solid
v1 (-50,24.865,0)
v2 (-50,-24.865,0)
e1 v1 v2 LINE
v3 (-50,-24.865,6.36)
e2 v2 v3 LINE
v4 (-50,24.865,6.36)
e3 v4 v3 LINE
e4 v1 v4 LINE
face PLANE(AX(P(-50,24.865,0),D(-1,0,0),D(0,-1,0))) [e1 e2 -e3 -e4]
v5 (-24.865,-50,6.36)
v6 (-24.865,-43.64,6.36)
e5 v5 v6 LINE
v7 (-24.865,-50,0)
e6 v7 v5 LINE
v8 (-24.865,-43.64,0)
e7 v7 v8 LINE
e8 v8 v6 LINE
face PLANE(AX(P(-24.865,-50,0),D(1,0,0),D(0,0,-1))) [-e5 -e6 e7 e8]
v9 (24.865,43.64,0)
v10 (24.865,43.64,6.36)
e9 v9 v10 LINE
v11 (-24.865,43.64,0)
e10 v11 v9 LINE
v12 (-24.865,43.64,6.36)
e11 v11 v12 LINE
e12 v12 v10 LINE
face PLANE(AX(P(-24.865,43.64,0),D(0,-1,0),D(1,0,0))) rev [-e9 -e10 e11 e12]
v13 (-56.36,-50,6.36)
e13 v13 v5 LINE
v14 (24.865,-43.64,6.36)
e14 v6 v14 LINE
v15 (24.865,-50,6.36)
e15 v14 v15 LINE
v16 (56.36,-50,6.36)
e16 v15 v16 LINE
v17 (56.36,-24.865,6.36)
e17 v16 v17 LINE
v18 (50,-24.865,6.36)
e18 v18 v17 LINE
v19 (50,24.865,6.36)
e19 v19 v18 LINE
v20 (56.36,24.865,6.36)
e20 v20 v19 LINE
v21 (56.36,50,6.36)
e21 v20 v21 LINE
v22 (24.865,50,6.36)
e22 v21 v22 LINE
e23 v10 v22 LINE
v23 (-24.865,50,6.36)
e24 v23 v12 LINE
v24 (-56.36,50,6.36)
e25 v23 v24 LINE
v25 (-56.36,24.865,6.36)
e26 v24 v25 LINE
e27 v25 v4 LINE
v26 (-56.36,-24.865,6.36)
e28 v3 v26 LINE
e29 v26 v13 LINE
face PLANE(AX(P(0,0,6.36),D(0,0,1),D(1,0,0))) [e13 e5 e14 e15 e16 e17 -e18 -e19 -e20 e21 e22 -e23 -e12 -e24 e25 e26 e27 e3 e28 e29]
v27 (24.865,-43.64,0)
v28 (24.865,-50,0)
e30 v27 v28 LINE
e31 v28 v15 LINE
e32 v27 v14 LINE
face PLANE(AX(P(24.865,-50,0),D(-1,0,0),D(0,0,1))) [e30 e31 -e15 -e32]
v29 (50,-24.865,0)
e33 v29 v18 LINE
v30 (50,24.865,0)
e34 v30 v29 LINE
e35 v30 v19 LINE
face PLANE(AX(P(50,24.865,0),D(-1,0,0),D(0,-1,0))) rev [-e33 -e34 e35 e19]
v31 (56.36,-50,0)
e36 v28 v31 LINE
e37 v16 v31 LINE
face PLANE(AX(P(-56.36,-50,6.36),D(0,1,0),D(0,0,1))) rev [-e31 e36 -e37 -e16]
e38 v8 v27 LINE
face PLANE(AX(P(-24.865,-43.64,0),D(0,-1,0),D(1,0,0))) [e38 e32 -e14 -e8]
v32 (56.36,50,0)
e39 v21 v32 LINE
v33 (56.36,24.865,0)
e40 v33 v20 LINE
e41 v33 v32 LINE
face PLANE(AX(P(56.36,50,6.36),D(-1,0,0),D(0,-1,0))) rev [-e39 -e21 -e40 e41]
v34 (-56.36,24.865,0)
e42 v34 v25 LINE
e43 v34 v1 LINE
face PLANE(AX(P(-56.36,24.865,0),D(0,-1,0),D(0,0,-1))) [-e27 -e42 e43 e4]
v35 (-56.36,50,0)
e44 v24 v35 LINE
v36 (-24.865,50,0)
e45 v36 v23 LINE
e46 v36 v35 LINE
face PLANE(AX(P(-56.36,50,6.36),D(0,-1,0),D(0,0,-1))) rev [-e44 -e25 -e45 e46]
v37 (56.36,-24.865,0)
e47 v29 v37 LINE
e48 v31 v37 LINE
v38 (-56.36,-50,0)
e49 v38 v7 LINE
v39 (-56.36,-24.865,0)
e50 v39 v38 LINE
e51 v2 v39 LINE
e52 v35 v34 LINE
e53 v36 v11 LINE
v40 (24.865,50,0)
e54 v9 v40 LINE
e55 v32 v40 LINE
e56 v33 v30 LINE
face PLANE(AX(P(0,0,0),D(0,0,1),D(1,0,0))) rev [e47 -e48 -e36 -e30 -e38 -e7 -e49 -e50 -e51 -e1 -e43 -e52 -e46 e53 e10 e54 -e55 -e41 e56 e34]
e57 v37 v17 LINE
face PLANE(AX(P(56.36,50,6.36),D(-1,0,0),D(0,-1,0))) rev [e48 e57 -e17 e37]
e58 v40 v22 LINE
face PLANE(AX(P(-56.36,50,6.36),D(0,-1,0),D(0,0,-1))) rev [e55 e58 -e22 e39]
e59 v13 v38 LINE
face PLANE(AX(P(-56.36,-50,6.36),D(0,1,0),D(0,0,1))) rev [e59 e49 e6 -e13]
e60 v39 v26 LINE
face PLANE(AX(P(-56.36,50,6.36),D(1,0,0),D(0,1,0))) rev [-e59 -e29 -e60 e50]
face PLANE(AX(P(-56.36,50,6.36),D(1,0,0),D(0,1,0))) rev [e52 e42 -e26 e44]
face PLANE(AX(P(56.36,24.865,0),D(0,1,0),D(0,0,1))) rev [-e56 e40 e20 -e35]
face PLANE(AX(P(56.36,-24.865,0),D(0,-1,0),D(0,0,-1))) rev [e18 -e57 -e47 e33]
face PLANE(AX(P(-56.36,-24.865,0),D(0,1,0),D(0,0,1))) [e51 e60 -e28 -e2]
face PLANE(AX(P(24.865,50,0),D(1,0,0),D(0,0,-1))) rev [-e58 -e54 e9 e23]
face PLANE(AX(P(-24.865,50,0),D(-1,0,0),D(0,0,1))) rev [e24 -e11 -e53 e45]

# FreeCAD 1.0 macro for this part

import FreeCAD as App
import Part
import Sketcher
from FreeCAD import Vector


def add_polygon(sketch, points):
    """Adds a closed chain of lines whose ends are joined by coincident constraints."""
    first, n = sketch.GeometryCount, len(points)
    for a, b in zip(points, points[1:] + points[:1]):
        sketch.addGeometry(Part.LineSegment(App.Vector(*a, 0), App.Vector(*b, 0)), False)
    for i in range(n):
        sketch.addConstraint(Sketcher.Constraint("Coincident", first + i, 2, first + (i + 1) % n, 1))

doc = App.newDocument("Part")
params = doc.addObject("Spreadsheet::Sheet", "Params")
for row, (alias, value) in enumerate([
    ("sketch1_height", "100 mm"),
    ("sketch1_width", "112.72 mm"),
    ("pad1_length", "6.36 mm"),
    ("sketch2_width", "49.73 mm"),
    ("sketch2_height", "6.36 mm"),
    ("sketch3_width", "6.36 mm"),
    ("sketch3_height", "49.73 mm"),
], start=1):
    params.set(f"A{row}", alias)
    params.set(f"B{row}", "=" + value)
    params.setAlias(f"B{row}", alias)

body = doc.addObject("PartDesign::Body", "Body")

# Sketch on XY plane
sketch1 = doc.addObject("Sketcher::SketchObject", "Sketch")
body.addObject(sketch1)
sketch1.AttachmentSupport = (doc.XY_Plane, [""])
sketch1.MapMode = "FlatFace"
add_polygon(sketch1, [(-56, 50), (-56, -50), (56, -50), (56, 50)])  # lines 0-3
sketch1.addConstraint(Sketcher.Constraint("Vertical", 0))
sketch1.addConstraint(Sketcher.Constraint("Horizontal", 1))
sketch1.addConstraint(Sketcher.Constraint("Vertical", 2))
sketch1.addConstraint(Sketcher.Constraint("Horizontal", 3))
sketch1.addConstraint(Sketcher.Constraint("Symmetric", 0, 2, 2, 2, -1, 1))
sketch1.addConstraint(Sketcher.Constraint("DistanceY", 0, 2, 0, 1, 100.0))
sketch1.addConstraint(Sketcher.Constraint("DistanceX", 1, 1, 1, 2, 112.72))
sketch1.setExpression("Constraints[9]", "Params.sketch1_height")
sketch1.setExpression("Constraints[10]", "Params.sketch1_width")
pad1 = doc.addObject("PartDesign::Pad", "Pad")
body.addObject(pad1)
pad1.Profile = sketch1
pad1.setExpression("Length", "Params.pad1_length")

# Sketch on XY plane
sketch2 = doc.addObject("Sketcher::SketchObject", "Sketch001")
body.addObject(sketch2)
sketch2.AttachmentSupport = (doc.XY_Plane, [""])
sketch2.MapMode = "FlatFace"
sketch2.AttachmentOffset = App.Placement(Vector(0, 0, 6.36), App.Rotation())
add_polygon(sketch2, [(-25, 50), (-25, 44), (25, 44), (25, 50)])  # lines 0-3
sketch2.addConstraint(Sketcher.Constraint("Vertical", 0))
sketch2.addConstraint(Sketcher.Constraint("Horizontal", 1))
sketch2.addConstraint(Sketcher.Constraint("Vertical", 2))
sketch2.addConstraint(Sketcher.Constraint("Horizontal", 3))
sketch2.addConstraint(Sketcher.Constraint("DistanceY", -1, 1, 2, 2, 50.0))
sketch2.addConstraint(Sketcher.Constraint("DistanceX", 1, 1, 1, 2, 49.73))
sketch2.addConstraint(Sketcher.Constraint("DistanceY", 0, 2, 0, 1, 6.36))
sketch2.addConstraint(Sketcher.Constraint("DistanceX", 0, 2, -1, 1, 24.865))
sketch2.setExpression("Constraints[9]", "Params.sketch2_width")
sketch2.setExpression("Constraints[10]", "Params.sketch2_height")
pocket1 = doc.addObject("PartDesign::Pocket", "Pocket")
body.addObject(pocket1)
pocket1.Profile = sketch2
pocket1.Type = "ThroughAll"
doc.recompute()

mirrored = doc.addObject("PartDesign::Mirrored", "Mirrored")
body.addObject(mirrored)
mirrored.Originals = [pocket1]
mirrored.MirrorPlane = (doc.XZ_Plane, [""])
body.Tip = mirrored

# Sketch on XY plane
sketch3 = doc.addObject("Sketcher::SketchObject", "Sketch002")
body.addObject(sketch3)
sketch3.AttachmentSupport = (doc.XY_Plane, [""])
sketch3.MapMode = "FlatFace"
sketch3.AttachmentOffset = App.Placement(Vector(0, 0, 6.36), App.Rotation())
add_polygon(sketch3, [(50, 25), (50, -25), (56, -25), (56, 25)])  # lines 0-3
sketch3.addConstraint(Sketcher.Constraint("Vertical", 0))
sketch3.addConstraint(Sketcher.Constraint("Horizontal", 1))
sketch3.addConstraint(Sketcher.Constraint("Vertical", 2))
sketch3.addConstraint(Sketcher.Constraint("Horizontal", 3))
sketch3.addConstraint(Sketcher.Constraint("DistanceX", -1, 1, 0, 2, 50.0))
sketch3.addConstraint(Sketcher.Constraint("DistanceX", 1, 1, 1, 2, 6.36))
sketch3.addConstraint(Sketcher.Constraint("DistanceY", 0, 2, 0, 1, 49.73))
sketch3.addConstraint(Sketcher.Constraint("DistanceY", 0, 2, -1, 1, 24.865))
sketch3.setExpression("Constraints[9]", "Params.sketch3_width")
sketch3.setExpression("Constraints[10]", "Params.sketch3_height")
pocket2 = doc.addObject("PartDesign::Pocket", "Pocket001")
body.addObject(pocket2)
pocket2.Profile = sketch3
pocket2.Type = "ThroughAll"
doc.recompute()

mirrored2 = doc.addObject("PartDesign::Mirrored", "Mirrored001")
body.addObject(mirrored2)
mirrored2.Originals = [pocket2]
mirrored2.MirrorPlane = (doc.YZ_Plane, [""])
body.Tip = mirrored2

doc.recompute()
